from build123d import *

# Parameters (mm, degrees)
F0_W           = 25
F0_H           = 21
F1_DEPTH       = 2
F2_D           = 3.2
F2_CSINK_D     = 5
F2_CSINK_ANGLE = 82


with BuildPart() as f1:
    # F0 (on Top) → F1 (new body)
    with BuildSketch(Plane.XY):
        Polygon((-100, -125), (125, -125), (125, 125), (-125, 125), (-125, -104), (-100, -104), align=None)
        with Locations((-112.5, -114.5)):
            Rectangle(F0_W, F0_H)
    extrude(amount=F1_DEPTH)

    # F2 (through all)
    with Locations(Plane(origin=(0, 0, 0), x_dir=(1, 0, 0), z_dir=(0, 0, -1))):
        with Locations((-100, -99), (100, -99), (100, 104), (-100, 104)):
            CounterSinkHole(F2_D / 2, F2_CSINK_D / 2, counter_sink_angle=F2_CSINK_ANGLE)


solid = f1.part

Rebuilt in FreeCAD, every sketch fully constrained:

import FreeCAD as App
import Part
import Sketcher

V = App.Vector
Q = App.Units.Quantity


def add_polygon(sketch, points):
    """Adds a closed chain of lines whose ends are joined by coincident constraints."""
    first, n = sketch.GeometryCount, len(points)
    for a, b in zip(points, points[1:] + points[:1]):
        sketch.addGeometry(Part.LineSegment(App.Vector(*a, 0), App.Vector(*b, 0)), False)
    for i in range(n):
        sketch.addConstraint(Sketcher.Constraint("Coincident", first + i, 2, first + (i + 1) % n, 1))

doc = App.newDocument("Part")
body = doc.addObject("PartDesign::Body", "Body")

# Sketch on XY plane
sketch1 = body.newObject("Sketcher::SketchObject", "Sketch")
sketch1.AttachmentSupport = (doc.getObject("XY_Plane"), [""])
sketch1.MapMode = "FlatFace"
add_polygon(sketch1, [(125, -125), (125, 125), (-125, 125), (-125, -125)])  # lines 0-3
sketch1.addConstraint([
    Sketcher.Constraint("Vertical", 0),
    Sketcher.Constraint("Horizontal", 1),
    Sketcher.Constraint("Vertical", 2),
    Sketcher.Constraint("Horizontal", 3),
    Sketcher.Constraint("Symmetric", 0, 2, 2, 2, -1, 1),
    Sketcher.Constraint("Equal", 3, 0),
    Sketcher.Constraint("DistanceX", 1, 2, 1, 1, Q("250 mm")),
])
pad1 = body.newObject("PartDesign::Pad", "Pad")
pad1.Profile = sketch1
pad1.Length = 2

# Sketch on XY plane
sketch2 = body.newObject("Sketcher::SketchObject", "Sketch001")
sketch2.AttachmentSupport = (doc.getObject("XY_Plane"), [""])
sketch2.MapMode = "FlatFace"
sketch2.addGeometry([
    Part.Circle(V(-100, 99, 0), V(0, 0, 1), 1.6),
    Part.Circle(V(100, 99, 0), V(0, 0, 1), 1.6),
    Part.Circle(V(100, -104, 0), V(0, 0, 1), 1.6),
    Part.Circle(V(-100, -104, 0), V(0, 0, 1), 1.6),
], False)
sketch2.addConstraint([
    Sketcher.Constraint("Equal", 0, 1),
    Sketcher.Constraint("Equal", 1, 2),
    Sketcher.Constraint("Equal", 2, 3),
    Sketcher.Constraint("Symmetric", 0, 3, 1, 3, -2),
    Sketcher.Constraint("Symmetric", 2, 3, 3, 3, -2),
    Sketcher.Constraint("Vertical", 1, 3, 2, 3),
    Sketcher.Constraint("Diameter", 0, Q("3.2 mm")),
    Sketcher.Constraint("DistanceX", 0, 3, -1, 1, Q("100 mm")),
    Sketcher.Constraint("DistanceY", -1, 1, 0, 3, Q("99 mm")),
    Sketcher.Constraint("DistanceY", 2, 3, -1, 1, Q("104 mm")),
])
doc.recompute()
hole = body.newObject("PartDesign::Hole", "Hole")
hole.Profile = sketch2
hole.ThreadType = "None"
hole.Diameter = 3.2
hole.DepthType = "ThroughAll"
hole.HoleCutType = "Countersink"
hole.HoleCutDiameter = 5
hole.HoleCutCountersinkAngle = 82
hole.Reversed = True

doc.recompute()
